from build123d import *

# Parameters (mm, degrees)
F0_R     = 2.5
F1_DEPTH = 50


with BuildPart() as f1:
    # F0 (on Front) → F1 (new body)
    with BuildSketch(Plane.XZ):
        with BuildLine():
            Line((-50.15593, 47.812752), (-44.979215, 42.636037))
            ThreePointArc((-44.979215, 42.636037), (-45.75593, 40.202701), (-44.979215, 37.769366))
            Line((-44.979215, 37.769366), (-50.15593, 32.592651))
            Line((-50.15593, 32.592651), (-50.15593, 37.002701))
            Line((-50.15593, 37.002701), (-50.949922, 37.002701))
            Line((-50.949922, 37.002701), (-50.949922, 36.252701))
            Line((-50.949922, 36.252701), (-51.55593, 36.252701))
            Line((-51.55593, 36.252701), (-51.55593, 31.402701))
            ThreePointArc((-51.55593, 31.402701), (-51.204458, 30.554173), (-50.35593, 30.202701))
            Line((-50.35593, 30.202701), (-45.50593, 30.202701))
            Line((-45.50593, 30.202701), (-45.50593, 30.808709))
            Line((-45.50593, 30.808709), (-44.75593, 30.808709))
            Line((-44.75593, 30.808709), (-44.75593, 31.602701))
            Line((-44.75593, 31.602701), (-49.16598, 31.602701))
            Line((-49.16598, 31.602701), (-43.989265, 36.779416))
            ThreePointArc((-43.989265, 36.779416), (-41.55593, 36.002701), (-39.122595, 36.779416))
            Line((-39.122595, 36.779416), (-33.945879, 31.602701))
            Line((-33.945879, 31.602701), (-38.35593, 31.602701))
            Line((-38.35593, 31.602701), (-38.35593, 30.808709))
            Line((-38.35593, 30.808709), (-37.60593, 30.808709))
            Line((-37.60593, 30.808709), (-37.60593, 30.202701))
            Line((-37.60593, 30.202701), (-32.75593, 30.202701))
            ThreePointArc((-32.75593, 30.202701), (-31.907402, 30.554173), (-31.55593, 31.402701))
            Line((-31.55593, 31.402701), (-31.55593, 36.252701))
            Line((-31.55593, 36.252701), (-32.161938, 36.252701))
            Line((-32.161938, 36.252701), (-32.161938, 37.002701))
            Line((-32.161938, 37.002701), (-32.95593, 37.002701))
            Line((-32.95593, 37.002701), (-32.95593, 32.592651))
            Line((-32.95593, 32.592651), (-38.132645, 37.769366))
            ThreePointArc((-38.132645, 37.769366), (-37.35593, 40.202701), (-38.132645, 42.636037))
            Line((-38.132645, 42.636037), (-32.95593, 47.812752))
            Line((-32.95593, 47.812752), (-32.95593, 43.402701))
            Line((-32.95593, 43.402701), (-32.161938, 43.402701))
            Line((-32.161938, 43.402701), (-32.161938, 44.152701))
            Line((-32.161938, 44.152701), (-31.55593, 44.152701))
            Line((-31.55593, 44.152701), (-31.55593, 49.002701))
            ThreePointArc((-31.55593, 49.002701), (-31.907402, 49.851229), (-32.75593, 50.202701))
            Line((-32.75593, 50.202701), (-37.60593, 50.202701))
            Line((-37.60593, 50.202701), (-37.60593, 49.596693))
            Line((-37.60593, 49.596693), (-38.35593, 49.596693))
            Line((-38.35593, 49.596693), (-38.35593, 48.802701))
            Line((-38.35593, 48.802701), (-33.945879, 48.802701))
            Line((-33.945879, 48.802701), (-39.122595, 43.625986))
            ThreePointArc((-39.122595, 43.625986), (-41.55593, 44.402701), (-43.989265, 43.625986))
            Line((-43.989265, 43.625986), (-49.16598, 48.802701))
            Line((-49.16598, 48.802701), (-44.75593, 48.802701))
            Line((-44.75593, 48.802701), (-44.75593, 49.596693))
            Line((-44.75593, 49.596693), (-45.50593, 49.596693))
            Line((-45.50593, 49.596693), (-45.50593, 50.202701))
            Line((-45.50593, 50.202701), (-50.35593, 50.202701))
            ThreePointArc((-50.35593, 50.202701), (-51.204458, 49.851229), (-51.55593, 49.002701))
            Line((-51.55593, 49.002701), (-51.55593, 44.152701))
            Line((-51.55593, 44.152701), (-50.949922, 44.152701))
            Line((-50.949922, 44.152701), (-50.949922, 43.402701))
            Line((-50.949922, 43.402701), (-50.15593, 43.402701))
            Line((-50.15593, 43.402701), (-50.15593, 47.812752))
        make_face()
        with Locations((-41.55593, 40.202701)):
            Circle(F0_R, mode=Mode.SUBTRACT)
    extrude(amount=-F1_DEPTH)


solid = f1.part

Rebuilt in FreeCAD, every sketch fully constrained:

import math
import FreeCAD as App
import Part
import Sketcher
from FreeCAD import Vector

doc = App.newDocument("Part")
body = doc.addObject("PartDesign::Body", "Body")

sketch1 = doc.addObject("Sketcher::SketchObject", "Sketch")
body.addObject(sketch1)
sketch1.AttachmentSupport = (doc.XZ_Plane, [""])
sketch1.MapMode = "FlatFace"
sketch1.addGeometry(Part.LineSegment(Vector(-50.2, 47.8, 0), Vector(-45, 42.6, 0)), False)
sketch1.addGeometry(Part.ArcOfCircle(Part.Circle(Vector(-41.6, 40.2, 0), Vector(0, 0, 1), 4.2), math.radians(145), math.radians(215)), False)
sketch1.addGeometry(Part.LineSegment(Vector(-45, 37.8, 0), Vector(-50.2, 32.6, 0)), False)
sketch1.addGeometry(Part.LineSegment(Vector(-50.2, 32.6, 0), Vector(-50.2, 37, 0)), False)
sketch1.addGeometry(Part.LineSegment(Vector(-50.2, 37, 0), Vector(-50.9, 37, 0)), False)
sketch1.addGeometry(Part.LineSegment(Vector(-50.9, 37, 0), Vector(-50.9, 36.3, 0)), False)
sketch1.addGeometry(Part.LineSegment(Vector(-50.9, 36.3, 0), Vector(-51.6, 36.3, 0)), False)
sketch1.addGeometry(Part.LineSegment(Vector(-51.6, 36.3, 0), Vector(-51.6, 31.4, 0)), False)
sketch1.addGeometry(Part.ArcOfCircle(Part.Circle(Vector(-50.4, 31.4, 0), Vector(0, 0, 1), 1.2), math.radians(-180), math.radians(-90)), False)
sketch1.addGeometry(Part.LineSegment(Vector(-50.4, 30.2, 0), Vector(-45.5, 30.2, 0)), False)
sketch1.addGeometry(Part.LineSegment(Vector(-45.5, 30.2, 0), Vector(-45.5, 30.8, 0)), False)
sketch1.addGeometry(Part.LineSegment(Vector(-45.5, 30.8, 0), Vector(-44.8, 30.8, 0)), False)
sketch1.addGeometry(Part.LineSegment(Vector(-44.8, 30.8, 0), Vector(-44.8, 31.6, 0)), False)
sketch1.addGeometry(Part.LineSegment(Vector(-44.8, 31.6, 0), Vector(-49.2, 31.6, 0)), False)
sketch1.addGeometry(Part.LineSegment(Vector(-49.2, 31.6, 0), Vector(-44, 36.8, 0)), False)
sketch1.addGeometry(Part.ArcOfCircle(Part.Circle(Vector(-41.6, 40.2, 0), Vector(0, 0, 1), 4.2), math.radians(-125), math.radians(-55)), False)
sketch1.addGeometry(Part.LineSegment(Vector(-39.1, 36.8, 0), Vector(-33.9, 31.6, 0)), False)
sketch1.addGeometry(Part.LineSegment(Vector(-33.9, 31.6, 0), Vector(-38.4, 31.6, 0)), False)
sketch1.addGeometry(Part.LineSegment(Vector(-38.4, 31.6, 0), Vector(-38.4, 30.8, 0)), False)
sketch1.addGeometry(Part.LineSegment(Vector(-38.4, 30.8, 0), Vector(-37.6, 30.8, 0)), False)
sketch1.addGeometry(Part.LineSegment(Vector(-37.6, 30.8, 0), Vector(-37.6, 30.2, 0)), False)
sketch1.addGeometry(Part.LineSegment(Vector(-37.6, 30.2, 0), Vector(-32.8, 30.2, 0)), False)
sketch1.addGeometry(Part.ArcOfCircle(Part.Circle(Vector(-32.8, 31.4, 0), Vector(0, 0, 1), 1.2), math.radians(-90), math.radians(0)), False)
sketch1.addGeometry(Part.LineSegment(Vector(-31.6, 31.4, 0), Vector(-31.6, 36.3, 0)), False)
sketch1.addGeometry(Part.LineSegment(Vector(-31.6, 36.3, 0), Vector(-32.2, 36.3, 0)), False)
sketch1.addGeometry(Part.LineSegment(Vector(-32.2, 36.3, 0), Vector(-32.2, 37, 0)), False)
sketch1.addGeometry(Part.LineSegment(Vector(-32.2, 37, 0), Vector(-33, 37, 0)), False)
sketch1.addGeometry(Part.LineSegment(Vector(-33, 37, 0), Vector(-33, 32.6, 0)), False)
sketch1.addGeometry(Part.LineSegment(Vector(-33, 32.6, 0), Vector(-38.1, 37.8, 0)), False)
sketch1.addGeometry(Part.ArcOfCircle(Part.Circle(Vector(-41.6, 40.2, 0), Vector(0, 0, 1), 4.2), math.radians(-35), math.radians(35)), False)
sketch1.addGeometry(Part.LineSegment(Vector(-38.1, 42.6, 0), Vector(-33, 47.8, 0)), False)
sketch1.addGeometry(Part.LineSegment(Vector(-33, 47.8, 0), Vector(-33, 43.4, 0)), False)
sketch1.addGeometry(Part.LineSegment(Vector(-33, 43.4, 0), Vector(-32.2, 43.4, 0)), False)
sketch1.addGeometry(Part.LineSegment(Vector(-32.2, 43.4, 0), Vector(-32.2, 44.2, 0)), False)
sketch1.addGeometry(Part.LineSegment(Vector(-32.2, 44.2, 0), Vector(-31.6, 44.2, 0)), False)
sketch1.addGeometry(Part.LineSegment(Vector(-31.6, 44.2, 0), Vector(-31.6, 49, 0)), False)
sketch1.addGeometry(Part.ArcOfCircle(Part.Circle(Vector(-32.8, 49, 0), Vector(0, 0, 1), 1.2), math.radians(0), math.radians(90)), False)
sketch1.addGeometry(Part.LineSegment(Vector(-32.8, 50.2, 0), Vector(-37.6, 50.2, 0)), False)
sketch1.addGeometry(Part.LineSegment(Vector(-37.6, 50.2, 0), Vector(-37.6, 49.6, 0)), False)
sketch1.addGeometry(Part.LineSegment(Vector(-37.6, 49.6, 0), Vector(-38.4, 49.6, 0)), False)
sketch1.addGeometry(Part.LineSegment(Vector(-38.4, 49.6, 0), Vector(-38.4, 48.8, 0)), False)
sketch1.addGeometry(Part.LineSegment(Vector(-38.4, 48.8, 0), Vector(-33.9, 48.8, 0)), False)
sketch1.addGeometry(Part.LineSegment(Vector(-33.9, 48.8, 0), Vector(-39.1, 43.6, 0)), False)
sketch1.addGeometry(Part.ArcOfCircle(Part.Circle(Vector(-41.6, 40.2, 0), Vector(0, 0, 1), 4.2), math.radians(55), math.radians(125)), False)
sketch1.addGeometry(Part.LineSegment(Vector(-44, 43.6, 0), Vector(-49.2, 48.8, 0)), False)
sketch1.addGeometry(Part.LineSegment(Vector(-49.2, 48.8, 0), Vector(-44.8, 48.8, 0)), False)
sketch1.addGeometry(Part.LineSegment(Vector(-44.8, 48.8, 0), Vector(-44.8, 49.6, 0)), False)
sketch1.addGeometry(Part.LineSegment(Vector(-44.8, 49.6, 0), Vector(-45.5, 49.6, 0)), False)
sketch1.addGeometry(Part.LineSegment(Vector(-45.5, 49.6, 0), Vector(-45.5, 50.2, 0)), False)
sketch1.addGeometry(Part.LineSegment(Vector(-45.5, 50.2, 0), Vector(-50.4, 50.2, 0)), False)
sketch1.addGeometry(Part.ArcOfCircle(Part.Circle(Vector(-50.4, 49, 0), Vector(0, 0, 1), 1.2), math.radians(90), math.radians(180)), False)
sketch1.addGeometry(Part.LineSegment(Vector(-51.6, 49, 0), Vector(-51.6, 44.2, 0)), False)
sketch1.addGeometry(Part.LineSegment(Vector(-51.6, 44.2, 0), Vector(-50.9, 44.2, 0)), False)
sketch1.addGeometry(Part.LineSegment(Vector(-50.9, 44.2, 0), Vector(-50.9, 43.4, 0)), False)
sketch1.addGeometry(Part.LineSegment(Vector(-50.9, 43.4, 0), Vector(-50.2, 43.4, 0)), False)
sketch1.addGeometry(Part.LineSegment(Vector(-50.2, 43.4, 0), Vector(-50.2, 47.8, 0)), False)
sketch1.addGeometry(Part.Circle(Vector(-41.6, 40.2, 0), Vector(0, 0, 1), 2.5), False)
sketch1.addConstraint(Sketcher.Constraint("Coincident", 0, 2, 1, 1))
sketch1.addConstraint(Sketcher.Constraint("Coincident", 1, 2, 2, 1))
sketch1.addConstraint(Sketcher.Constraint("Coincident", 2, 2, 3, 1))
sketch1.addConstraint(Sketcher.Constraint("Coincident", 3, 2, 4, 1))
sketch1.addConstraint(Sketcher.Constraint("Coincident", 4, 2, 5, 1))
sketch1.addConstraint(Sketcher.Constraint("Coincident", 5, 2, 6, 1))
sketch1.addConstraint(Sketcher.Constraint("Coincident", 6, 2, 7, 1))
sketch1.addConstraint(Sketcher.Constraint("Tangent", 7, 2, 8, 1))
sketch1.addConstraint(Sketcher.Constraint("Tangent", 8, 2, 9, 1))
sketch1.addConstraint(Sketcher.Constraint("Coincident", 9, 2, 10, 1))
sketch1.addConstraint(Sketcher.Constraint("Coincident", 10, 2, 11, 1))
sketch1.addConstraint(Sketcher.Constraint("Coincident", 11, 2, 12, 1))
sketch1.addConstraint(Sketcher.Constraint("Coincident", 12, 2, 13, 1))
sketch1.addConstraint(Sketcher.Constraint("Coincident", 13, 2, 14, 1))
sketch1.addConstraint(Sketcher.Constraint("Coincident", 14, 2, 15, 1))
sketch1.addConstraint(Sketcher.Constraint("Coincident", 15, 2, 16, 1))
sketch1.addConstraint(Sketcher.Constraint("Coincident", 16, 2, 17, 1))
sketch1.addConstraint(Sketcher.Constraint("Coincident", 17, 2, 18, 1))
sketch1.addConstraint(Sketcher.Constraint("Coincident", 18, 2, 19, 1))
sketch1.addConstraint(Sketcher.Constraint("Coincident", 19, 2, 20, 1))
sketch1.addConstraint(Sketcher.Constraint("Coincident", 20, 2, 21, 1))
sketch1.addConstraint(Sketcher.Constraint("Tangent", 21, 2, 22, 1))
sketch1.addConstraint(Sketcher.Constraint("Tangent", 22, 2, 23, 1))
sketch1.addConstraint(Sketcher.Constraint("Coincident", 23, 2, 24, 1))
sketch1.addConstraint(Sketcher.Constraint("Coincident", 24, 2, 25, 1))
sketch1.addConstraint(Sketcher.Constraint("Coincident", 25, 2, 26, 1))
sketch1.addConstraint(Sketcher.Constraint("Coincident", 26, 2, 27, 1))
sketch1.addConstraint(Sketcher.Constraint("Coincident", 27, 2, 28, 1))
sketch1.addConstraint(Sketcher.Constraint("Coincident", 28, 2, 29, 1))
sketch1.addConstraint(Sketcher.Constraint("Coincident", 29, 2, 30, 1))
sketch1.addConstraint(Sketcher.Constraint("Coincident", 30, 2, 31, 1))
sketch1.addConstraint(Sketcher.Constraint("Coincident", 31, 2, 32, 1))
sketch1.addConstraint(Sketcher.Constraint("Coincident", 32, 2, 33, 1))
sketch1.addConstraint(Sketcher.Constraint("Coincident", 33, 2, 34, 1))
sketch1.addConstraint(Sketcher.Constraint("Coincident", 34, 2, 35, 1))
sketch1.addConstraint(Sketcher.Constraint("Tangent", 35, 2, 36, 1))
sketch1.addConstraint(Sketcher.Constraint("Tangent", 36, 2, 37, 1))
sketch1.addConstraint(Sketcher.Constraint("Coincident", 37, 2, 38, 1))
sketch1.addConstraint(Sketcher.Constraint("Coincident", 38, 2, 39, 1))
sketch1.addConstraint(Sketcher.Constraint("Coincident", 39, 2, 40, 1))
sketch1.addConstraint(Sketcher.Constraint("Coincident", 40, 2, 41, 1))
sketch1.addConstraint(Sketcher.Constraint("Coincident", 41, 2, 42, 1))
sketch1.addConstraint(Sketcher.Constraint("Coincident", 42, 2, 43, 1))
sketch1.addConstraint(Sketcher.Constraint("Coincident", 43, 2, 44, 1))
sketch1.addConstraint(Sketcher.Constraint("Coincident", 44, 2, 45, 1))
sketch1.addConstraint(Sketcher.Constraint("Coincident", 45, 2, 46, 1))
sketch1.addConstraint(Sketcher.Constraint("Coincident", 46, 2, 47, 1))
sketch1.addConstraint(Sketcher.Constraint("Coincident", 47, 2, 48, 1))
sketch1.addConstraint(Sketcher.Constraint("Coincident", 48, 2, 49, 1))
sketch1.addConstraint(Sketcher.Constraint("Tangent", 49, 2, 50, 1))
sketch1.addConstraint(Sketcher.Constraint("Tangent", 50, 2, 51, 1))
sketch1.addConstraint(Sketcher.Constraint("Coincident", 51, 2, 52, 1))
sketch1.addConstraint(Sketcher.Constraint("Coincident", 52, 2, 53, 1))
sketch1.addConstraint(Sketcher.Constraint("Coincident", 53, 2, 54, 1))
sketch1.addConstraint(Sketcher.Constraint("Coincident", 54, 2, 55, 1))
sketch1.addConstraint(Sketcher.Constraint("Coincident", 55, 2, 0, 1))
sketch1.addConstraint(Sketcher.Constraint("Vertical", 3))
sketch1.addConstraint(Sketcher.Constraint("Horizontal", 4))
sketch1.addConstraint(Sketcher.Constraint("Vertical", 5))
sketch1.addConstraint(Sketcher.Constraint("Horizontal", 6))
sketch1.addConstraint(Sketcher.Constraint("Vertical", 7))
sketch1.addConstraint(Sketcher.Constraint("Horizontal", 9))
sketch1.addConstraint(Sketcher.Constraint("Vertical", 10))
sketch1.addConstraint(Sketcher.Constraint("Horizontal", 11))
sketch1.addConstraint(Sketcher.Constraint("Vertical", 12))
sketch1.addConstraint(Sketcher.Constraint("Horizontal", 13))
sketch1.addConstraint(Sketcher.Constraint("Horizontal", 17))
sketch1.addConstraint(Sketcher.Constraint("Vertical", 18))
sketch1.addConstraint(Sketcher.Constraint("Horizontal", 19))
sketch1.addConstraint(Sketcher.Constraint("Vertical", 20))
sketch1.addConstraint(Sketcher.Constraint("Horizontal", 21))
sketch1.addConstraint(Sketcher.Constraint("Vertical", 23))
sketch1.addConstraint(Sketcher.Constraint("Horizontal", 24))
sketch1.addConstraint(Sketcher.Constraint("Vertical", 25))
sketch1.addConstraint(Sketcher.Constraint("Horizontal", 26))
sketch1.addConstraint(Sketcher.Constraint("Vertical", 27))
sketch1.addConstraint(Sketcher.Constraint("Vertical", 31))
sketch1.addConstraint(Sketcher.Constraint("Horizontal", 32))
sketch1.addConstraint(Sketcher.Constraint("Vertical", 33))
sketch1.addConstraint(Sketcher.Constraint("Horizontal", 34))
sketch1.addConstraint(Sketcher.Constraint("Vertical", 35))
sketch1.addConstraint(Sketcher.Constraint("Horizontal", 37))
sketch1.addConstraint(Sketcher.Constraint("Vertical", 38))
sketch1.addConstraint(Sketcher.Constraint("Horizontal", 39))
sketch1.addConstraint(Sketcher.Constraint("Vertical", 40))
sketch1.addConstraint(Sketcher.Constraint("Horizontal", 41))
sketch1.addConstraint(Sketcher.Constraint("Horizontal", 45))
sketch1.addConstraint(Sketcher.Constraint("Vertical", 46))
sketch1.addConstraint(Sketcher.Constraint("Horizontal", 47))
sketch1.addConstraint(Sketcher.Constraint("Vertical", 48))
sketch1.addConstraint(Sketcher.Constraint("Horizontal", 49))
sketch1.addConstraint(Sketcher.Constraint("Vertical", 51))
sketch1.addConstraint(Sketcher.Constraint("Horizontal", 52))
sketch1.addConstraint(Sketcher.Constraint("Vertical", 53))
sketch1.addConstraint(Sketcher.Constraint("Horizontal", 54))
sketch1.addConstraint(Sketcher.Constraint("Vertical", 55))
sketch1.addConstraint(Sketcher.Constraint("Coincident", 15, 3, 1, 3))
sketch1.addConstraint(Sketcher.Constraint("Coincident", 29, 3, 1, 3))
sketch1.addConstraint(Sketcher.Constraint("Coincident", 43, 3, 1, 3))
sketch1.addConstraint(Sketcher.Constraint("Coincident", 56, 3, 1, 3))
sketch1.addConstraint(Sketcher.Constraint("Equal", 1, 15))
sketch1.addConstraint(Sketcher.Constraint("Equal", 8, 22))
sketch1.addConstraint(Sketcher.Constraint("Equal", 15, 29))
sketch1.addConstraint(Sketcher.Constraint("Equal", 22, 36))
sketch1.addConstraint(Sketcher.Constraint("Equal", 29, 43))
sketch1.addConstraint(Sketcher.Constraint("Equal", 36, 50))
sketch1.addConstraint(Sketcher.Constraint("Perpendicular", 0, 2))
sketch1.addConstraint(Sketcher.Constraint("Parallel", 2, 14))
sketch1.addConstraint(Sketcher.Constraint("Perpendicular", 14, 16))
sketch1.addConstraint(Sketcher.Constraint("Parallel", 16, 28))
sketch1.addConstraint(Sketcher.Constraint("Perpendicular", 28, 30))
sketch1.addConstraint(Sketcher.Constraint("Parallel", 30, 42))
sketch1.addConstraint(Sketcher.Constraint("Perpendicular", 42, 44))
sketch1.addConstraint(Sketcher.Constraint("Horizontal", 8, 3, 22, 3))
sketch1.addConstraint(Sketcher.Constraint("Horizontal", 36, 3, 50, 3))
sketch1.addConstraint(Sketcher.Constraint("Horizontal", 14, 2, 15, 2))
sketch1.addConstraint(Sketcher.Constraint("Horizontal", 13, 2, 16, 2))
sketch1.addConstraint(Sketcher.Constraint("Horizontal", 11, 2, 18, 2))
sketch1.addConstraint(Sketcher.Constraint("Horizontal", 6, 2, 23, 2))
sketch1.addConstraint(Sketcher.Constraint("Horizontal", 4, 2, 25, 2))
sketch1.addConstraint(Sketcher.Constraint("Horizontal", 2, 2, 27, 2))
sketch1.addConstraint(Sketcher.Constraint("Horizontal", 1, 2, 28, 2))
sketch1.addConstraint(Sketcher.Constraint("Horizontal", 0, 2, 29, 2))
sketch1.addConstraint(Sketcher.Constraint("Horizontal", 42, 2, 43, 2))
sketch1.addConstraint(Sketcher.Constraint("Horizontal", 41, 2, 44, 2))
sketch1.addConstraint(Sketcher.Constraint("Horizontal", 39, 2, 46, 2))
sketch1.addConstraint(Sketcher.Constraint("Horizontal", 34, 2, 51, 2))
sketch1.addConstraint(Sketcher.Constraint("Horizontal", 32, 2, 53, 2))
sketch1.addConstraint(Sketcher.Constraint("Horizontal", 30, 2, 55, 2))
sketch1.addConstraint(Sketcher.Constraint("Vertical", 22, 3, 36, 3))
sketch1.addConstraint(Sketcher.Constraint("Vertical", 8, 3, 50, 3))
sketch1.addConstraint(Sketcher.Constraint("Vertical", 0, 2, 1, 2))
sketch1.addConstraint(Sketcher.Constraint("Vertical", 27, 2, 30, 2))
sketch1.addConstraint(Sketcher.Constraint("Vertical", 25, 2, 32, 2))
sketch1.addConstraint(Sketcher.Constraint("Vertical", 20, 2, 37, 2))
sketch1.addConstraint(Sketcher.Constraint("Vertical", 18, 2, 39, 2))
sketch1.addConstraint(Sketcher.Constraint("Vertical", 16, 2, 41, 2))
sketch1.addConstraint(Sketcher.Constraint("Vertical", 15, 2, 42, 2))
sketch1.addConstraint(Sketcher.Constraint("Vertical", 13, 2, 44, 2))
sketch1.addConstraint(Sketcher.Constraint("Vertical", 12, 2, 45, 2))
sketch1.addConstraint(Sketcher.Constraint("Vertical", 10, 2, 47, 2))
sketch1.addConstraint(Sketcher.Constraint("Vertical", 5, 2, 52, 2))
sketch1.addConstraint(Sketcher.Constraint("Equal", 13, 17))
sketch1.addConstraint(Sketcher.Constraint("Equal", 11, 19))
sketch1.addConstraint(Sketcher.Constraint("Equal", 9, 21))
sketch1.addConstraint(Sketcher.Constraint("Equal", 6, 24))
sketch1.addConstraint(Sketcher.Constraint("Equal", 45, 3))
sketch1.addConstraint(Sketcher.Constraint("Equal", 47, 5))
sketch1.addConstraint(Sketcher.Constraint("Equal", 49, 7))
sketch1.addConstraint(Sketcher.Constraint("Equal", 52, 10))
sketch1.addConstraint(Sketcher.Constraint("Equal", 54, 12))
sketch1.addConstraint(Sketcher.Constraint("Equal", 27, 31))
sketch1.addConstraint(Sketcher.Constraint("Equal", 25, 33))
sketch1.addConstraint(Sketcher.Constraint("Equal", 23, 35))
sketch1.addConstraint(Sketcher.Constraint("Equal", 20, 38))
sketch1.addConstraint(Sketcher.Constraint("Equal", 2, 14))
sketch1.addConstraint(Sketcher.Constraint("Diameter", 56, 5.0))
sketch1.addConstraint(Sketcher.Constraint("Radius", 1, 4.200001))
sketch1.addConstraint(Sketcher.Constraint("Radius", 8, 1.2))
sketch1.addConstraint(Sketcher.Constraint("DistanceX", 9, 1, 9, 2, 4.85))
sketch1.addConstraint(Sketcher.Constraint("DistanceX", 11, 1, 11, 2, 0.75))
sketch1.addConstraint(Sketcher.Constraint("DistanceX", 13, 2, 13, 1, 4.41005))
sketch1.addConstraint(Sketcher.Constraint("DistanceY", 12, 1, 12, 2, 0.793992))
sketch1.addConstraint(Sketcher.Constraint("DistanceY", -1, 1, 1, 3, 40.202702))
sketch1.addConstraint(Sketcher.Constraint("DistanceY", -1, 1, 8, 3, 31.402701))
sketch1.addConstraint(Sketcher.Constraint("DistanceY", -1, 1, 12, 2, 31.602701))
sketch1.addConstraint(Sketcher.Constraint("DistanceX", 1, 3, -1, 1, 41.555929))
pad1 = doc.addObject("PartDesign::Pad", "Pad")
body.addObject(pad1)
pad1.Profile = sketch1
pad1.Length = 50
pad1.Reversed = True

doc.recompute()
